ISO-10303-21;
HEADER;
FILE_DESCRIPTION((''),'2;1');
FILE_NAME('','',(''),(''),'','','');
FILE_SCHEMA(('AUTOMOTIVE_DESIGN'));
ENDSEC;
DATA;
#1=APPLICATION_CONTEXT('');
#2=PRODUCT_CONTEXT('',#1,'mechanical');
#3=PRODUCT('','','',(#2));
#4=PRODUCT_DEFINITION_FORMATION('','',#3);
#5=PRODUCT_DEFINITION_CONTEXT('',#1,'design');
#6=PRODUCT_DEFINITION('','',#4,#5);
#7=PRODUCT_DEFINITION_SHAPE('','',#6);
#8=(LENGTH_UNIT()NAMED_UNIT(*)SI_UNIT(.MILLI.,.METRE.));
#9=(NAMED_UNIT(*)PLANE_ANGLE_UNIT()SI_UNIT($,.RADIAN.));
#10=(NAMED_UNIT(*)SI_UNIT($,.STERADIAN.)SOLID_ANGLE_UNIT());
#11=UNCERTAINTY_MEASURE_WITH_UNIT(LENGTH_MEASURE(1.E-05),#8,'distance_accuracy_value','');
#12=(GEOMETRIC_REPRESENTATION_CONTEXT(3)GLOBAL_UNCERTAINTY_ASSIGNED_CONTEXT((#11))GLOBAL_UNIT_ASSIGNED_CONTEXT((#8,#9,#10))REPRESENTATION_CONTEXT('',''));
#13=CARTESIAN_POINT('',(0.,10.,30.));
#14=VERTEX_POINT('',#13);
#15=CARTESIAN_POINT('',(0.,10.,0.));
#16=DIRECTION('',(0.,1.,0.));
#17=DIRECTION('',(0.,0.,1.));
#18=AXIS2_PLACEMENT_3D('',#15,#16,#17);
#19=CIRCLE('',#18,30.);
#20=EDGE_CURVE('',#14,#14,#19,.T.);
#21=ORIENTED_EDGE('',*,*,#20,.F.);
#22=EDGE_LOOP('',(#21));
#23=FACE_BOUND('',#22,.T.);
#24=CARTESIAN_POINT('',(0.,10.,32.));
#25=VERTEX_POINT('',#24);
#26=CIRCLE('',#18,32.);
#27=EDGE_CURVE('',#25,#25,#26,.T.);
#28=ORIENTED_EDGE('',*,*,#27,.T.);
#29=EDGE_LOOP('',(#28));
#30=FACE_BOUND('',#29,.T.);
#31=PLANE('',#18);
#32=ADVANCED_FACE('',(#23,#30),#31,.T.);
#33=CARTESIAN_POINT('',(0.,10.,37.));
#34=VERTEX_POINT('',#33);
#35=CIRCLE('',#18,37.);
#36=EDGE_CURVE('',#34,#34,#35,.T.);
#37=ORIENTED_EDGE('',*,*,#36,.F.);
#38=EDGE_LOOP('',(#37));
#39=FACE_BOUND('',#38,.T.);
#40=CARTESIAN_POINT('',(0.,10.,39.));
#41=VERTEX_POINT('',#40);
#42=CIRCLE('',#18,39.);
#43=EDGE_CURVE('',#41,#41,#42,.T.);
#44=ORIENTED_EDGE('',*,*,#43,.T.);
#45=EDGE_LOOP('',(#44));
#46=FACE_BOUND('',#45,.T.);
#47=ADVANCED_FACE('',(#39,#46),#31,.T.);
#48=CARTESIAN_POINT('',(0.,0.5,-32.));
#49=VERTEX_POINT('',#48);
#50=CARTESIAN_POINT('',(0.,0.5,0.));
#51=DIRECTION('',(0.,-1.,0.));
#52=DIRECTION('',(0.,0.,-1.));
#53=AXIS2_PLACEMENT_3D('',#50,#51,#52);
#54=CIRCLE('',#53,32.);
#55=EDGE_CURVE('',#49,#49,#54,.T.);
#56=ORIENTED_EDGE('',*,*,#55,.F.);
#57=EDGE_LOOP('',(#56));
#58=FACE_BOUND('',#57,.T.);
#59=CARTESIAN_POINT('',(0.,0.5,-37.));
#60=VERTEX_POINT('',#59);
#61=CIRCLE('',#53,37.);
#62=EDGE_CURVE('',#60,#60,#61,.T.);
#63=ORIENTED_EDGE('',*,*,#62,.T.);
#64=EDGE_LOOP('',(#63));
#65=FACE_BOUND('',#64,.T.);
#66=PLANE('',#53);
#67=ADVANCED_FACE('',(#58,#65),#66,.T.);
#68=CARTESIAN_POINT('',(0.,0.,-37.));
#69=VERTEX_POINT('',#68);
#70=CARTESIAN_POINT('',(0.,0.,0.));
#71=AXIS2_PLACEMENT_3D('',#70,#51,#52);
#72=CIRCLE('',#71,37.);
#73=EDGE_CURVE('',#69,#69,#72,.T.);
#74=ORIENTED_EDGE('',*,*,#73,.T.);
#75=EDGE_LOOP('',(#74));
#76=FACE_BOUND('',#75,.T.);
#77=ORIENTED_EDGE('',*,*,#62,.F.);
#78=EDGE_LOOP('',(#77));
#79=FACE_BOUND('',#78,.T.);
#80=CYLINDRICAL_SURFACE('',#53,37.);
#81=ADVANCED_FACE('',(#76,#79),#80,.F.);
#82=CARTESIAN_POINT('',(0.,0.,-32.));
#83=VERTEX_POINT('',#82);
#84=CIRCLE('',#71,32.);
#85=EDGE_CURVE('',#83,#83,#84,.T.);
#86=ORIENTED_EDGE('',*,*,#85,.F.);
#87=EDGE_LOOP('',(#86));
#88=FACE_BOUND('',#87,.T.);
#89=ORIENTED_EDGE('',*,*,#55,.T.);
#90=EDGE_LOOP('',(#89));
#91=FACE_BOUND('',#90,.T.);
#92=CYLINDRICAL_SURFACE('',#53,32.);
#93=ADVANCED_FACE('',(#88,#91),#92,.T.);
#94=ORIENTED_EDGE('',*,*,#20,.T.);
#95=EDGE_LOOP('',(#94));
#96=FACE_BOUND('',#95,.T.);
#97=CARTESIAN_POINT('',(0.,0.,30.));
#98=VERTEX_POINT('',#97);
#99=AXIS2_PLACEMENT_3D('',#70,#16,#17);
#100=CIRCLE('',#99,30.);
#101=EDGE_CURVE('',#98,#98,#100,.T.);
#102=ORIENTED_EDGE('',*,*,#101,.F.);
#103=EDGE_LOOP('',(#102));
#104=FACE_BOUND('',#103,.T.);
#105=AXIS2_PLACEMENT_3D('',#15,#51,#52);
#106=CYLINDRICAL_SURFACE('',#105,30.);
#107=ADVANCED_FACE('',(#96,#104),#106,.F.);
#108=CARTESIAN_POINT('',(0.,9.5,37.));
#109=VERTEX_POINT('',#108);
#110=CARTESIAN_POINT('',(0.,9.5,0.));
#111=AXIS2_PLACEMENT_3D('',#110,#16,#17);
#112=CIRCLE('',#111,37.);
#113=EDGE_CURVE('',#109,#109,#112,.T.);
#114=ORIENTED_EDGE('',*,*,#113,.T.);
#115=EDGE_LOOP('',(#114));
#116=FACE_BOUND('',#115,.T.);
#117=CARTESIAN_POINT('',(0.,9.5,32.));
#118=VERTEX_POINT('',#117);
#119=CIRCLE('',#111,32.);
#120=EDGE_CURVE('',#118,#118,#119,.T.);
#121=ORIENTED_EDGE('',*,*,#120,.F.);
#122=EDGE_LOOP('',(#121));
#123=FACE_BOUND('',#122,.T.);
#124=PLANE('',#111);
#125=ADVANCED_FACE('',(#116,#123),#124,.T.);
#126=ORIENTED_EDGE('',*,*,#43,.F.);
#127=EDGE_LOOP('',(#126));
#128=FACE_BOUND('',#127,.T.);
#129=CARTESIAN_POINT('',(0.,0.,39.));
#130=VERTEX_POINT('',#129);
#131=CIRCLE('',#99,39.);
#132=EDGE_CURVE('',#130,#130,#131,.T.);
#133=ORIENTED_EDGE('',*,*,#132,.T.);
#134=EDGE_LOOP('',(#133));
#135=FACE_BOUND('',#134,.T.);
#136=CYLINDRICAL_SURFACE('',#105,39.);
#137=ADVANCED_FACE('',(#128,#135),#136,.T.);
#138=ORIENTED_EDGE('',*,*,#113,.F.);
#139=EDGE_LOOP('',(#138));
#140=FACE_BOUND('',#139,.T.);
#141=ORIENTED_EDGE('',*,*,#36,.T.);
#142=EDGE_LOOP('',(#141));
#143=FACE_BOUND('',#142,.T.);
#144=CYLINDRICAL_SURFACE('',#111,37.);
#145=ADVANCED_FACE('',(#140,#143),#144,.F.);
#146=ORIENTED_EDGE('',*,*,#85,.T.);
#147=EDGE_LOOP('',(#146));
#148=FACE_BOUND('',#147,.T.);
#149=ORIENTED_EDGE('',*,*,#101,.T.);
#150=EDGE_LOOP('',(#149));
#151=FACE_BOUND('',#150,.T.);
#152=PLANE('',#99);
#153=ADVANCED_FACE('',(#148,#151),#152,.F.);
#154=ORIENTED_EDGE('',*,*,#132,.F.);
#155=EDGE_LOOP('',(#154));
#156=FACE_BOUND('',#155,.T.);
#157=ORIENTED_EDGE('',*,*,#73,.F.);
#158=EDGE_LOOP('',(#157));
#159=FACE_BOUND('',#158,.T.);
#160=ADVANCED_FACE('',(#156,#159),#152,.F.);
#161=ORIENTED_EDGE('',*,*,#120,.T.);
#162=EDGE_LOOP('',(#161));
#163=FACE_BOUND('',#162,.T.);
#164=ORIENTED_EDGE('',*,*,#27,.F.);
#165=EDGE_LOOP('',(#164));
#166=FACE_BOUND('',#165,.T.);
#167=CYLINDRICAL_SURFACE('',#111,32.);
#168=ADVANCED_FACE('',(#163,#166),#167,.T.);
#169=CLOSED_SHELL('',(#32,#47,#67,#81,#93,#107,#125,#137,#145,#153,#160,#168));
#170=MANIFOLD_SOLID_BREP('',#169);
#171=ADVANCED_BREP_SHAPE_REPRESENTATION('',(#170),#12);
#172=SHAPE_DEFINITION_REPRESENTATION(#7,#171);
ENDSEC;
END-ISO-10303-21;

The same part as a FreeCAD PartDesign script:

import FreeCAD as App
import Part
import Sketcher

V = App.Vector

doc = App.newDocument("Part")
body = doc.addObject("PartDesign::Body", "Body")

sketch1 = body.newObject("Sketcher::SketchObject", "Sketch")
sketch1.AttachmentSupport = (doc.getObject("XZ_Plane"), [""])
sketch1.MapMode = "FlatFace"
sketch1.addGeometry([
    Part.Circle(V(0, 0, 0), V(0, 0, 1), 39),
    Part.Circle(V(0, 0, 0), V(0, 0, 1), 30),
], False)
sketch1.addConstraint([
    Sketcher.Constraint("Coincident", 0, 3, -1, 1),
    Sketcher.Constraint("Coincident", 1, 3, -1, 1),
    Sketcher.Constraint("Diameter", 0, 78.0),
    Sketcher.Constraint("Diameter", 1, 60.0),
])
pad1 = body.newObject("PartDesign::Pad", "Pad")
pad1.Profile = sketch1
pad1.Length = 10
pad1.Reversed = True

sketch2 = body.newObject("Sketcher::SketchObject", "Sketch001")
sketch2.AttachmentSupport = (doc.getObject("XZ_Plane"), [""])
sketch2.MapMode = "FlatFace"
sketch2.AttachmentOffset = App.Placement(V(0, 0, -10), App.Rotation())
sketch2.addGeometry([
    Part.Circle(V(0, 0, 0), V(0, 0, 1), 37),
    Part.Circle(V(0, 0, 0), V(0, 0, 1), 32),
], False)
sketch2.addConstraint([
    Sketcher.Constraint("Coincident", 0, 3, -1, 1),
    Sketcher.Constraint("Coincident", 1, 3, -1, 1),
    Sketcher.Constraint("Diameter", 0, 74.0),
    Sketcher.Constraint("Diameter", 1, 64.0),
])
pocket1 = body.newObject("PartDesign::Pocket", "Pocket")
pocket1.Profile = sketch2
pocket1.Length = 0.5
pocket1.Reversed = True

sketch3 = body.newObject("Sketcher::SketchObject", "Sketch002")
sketch3.AttachmentSupport = (doc.getObject("XZ_Plane"), [""])
sketch3.MapMode = "FlatFace"
sketch3.AttachmentOffset = App.Placement(V(0, 0, -0.5), App.Rotation())
sketch3.addGeometry([
    Part.Circle(V(0, 0, 0), V(0, 0, 1), 37),
    Part.Circle(V(0, 0, 0), V(0, 0, 1), 32),
], False)
sketch3.addConstraint([
    Sketcher.Constraint("Coincident", 0, 3, -1, 1),
    Sketcher.Constraint("Coincident", 1, 3, -1, 1),
    Sketcher.Constraint("Diameter", 0, 74.0),
    Sketcher.Constraint("Diameter", 1, 64.0),
])
pocket2 = body.newObject("PartDesign::Pocket", "Pocket001")
pocket2.Profile = sketch3
pocket2.Length = 0.5
pocket2.Reversed = True

doc.recompute()
